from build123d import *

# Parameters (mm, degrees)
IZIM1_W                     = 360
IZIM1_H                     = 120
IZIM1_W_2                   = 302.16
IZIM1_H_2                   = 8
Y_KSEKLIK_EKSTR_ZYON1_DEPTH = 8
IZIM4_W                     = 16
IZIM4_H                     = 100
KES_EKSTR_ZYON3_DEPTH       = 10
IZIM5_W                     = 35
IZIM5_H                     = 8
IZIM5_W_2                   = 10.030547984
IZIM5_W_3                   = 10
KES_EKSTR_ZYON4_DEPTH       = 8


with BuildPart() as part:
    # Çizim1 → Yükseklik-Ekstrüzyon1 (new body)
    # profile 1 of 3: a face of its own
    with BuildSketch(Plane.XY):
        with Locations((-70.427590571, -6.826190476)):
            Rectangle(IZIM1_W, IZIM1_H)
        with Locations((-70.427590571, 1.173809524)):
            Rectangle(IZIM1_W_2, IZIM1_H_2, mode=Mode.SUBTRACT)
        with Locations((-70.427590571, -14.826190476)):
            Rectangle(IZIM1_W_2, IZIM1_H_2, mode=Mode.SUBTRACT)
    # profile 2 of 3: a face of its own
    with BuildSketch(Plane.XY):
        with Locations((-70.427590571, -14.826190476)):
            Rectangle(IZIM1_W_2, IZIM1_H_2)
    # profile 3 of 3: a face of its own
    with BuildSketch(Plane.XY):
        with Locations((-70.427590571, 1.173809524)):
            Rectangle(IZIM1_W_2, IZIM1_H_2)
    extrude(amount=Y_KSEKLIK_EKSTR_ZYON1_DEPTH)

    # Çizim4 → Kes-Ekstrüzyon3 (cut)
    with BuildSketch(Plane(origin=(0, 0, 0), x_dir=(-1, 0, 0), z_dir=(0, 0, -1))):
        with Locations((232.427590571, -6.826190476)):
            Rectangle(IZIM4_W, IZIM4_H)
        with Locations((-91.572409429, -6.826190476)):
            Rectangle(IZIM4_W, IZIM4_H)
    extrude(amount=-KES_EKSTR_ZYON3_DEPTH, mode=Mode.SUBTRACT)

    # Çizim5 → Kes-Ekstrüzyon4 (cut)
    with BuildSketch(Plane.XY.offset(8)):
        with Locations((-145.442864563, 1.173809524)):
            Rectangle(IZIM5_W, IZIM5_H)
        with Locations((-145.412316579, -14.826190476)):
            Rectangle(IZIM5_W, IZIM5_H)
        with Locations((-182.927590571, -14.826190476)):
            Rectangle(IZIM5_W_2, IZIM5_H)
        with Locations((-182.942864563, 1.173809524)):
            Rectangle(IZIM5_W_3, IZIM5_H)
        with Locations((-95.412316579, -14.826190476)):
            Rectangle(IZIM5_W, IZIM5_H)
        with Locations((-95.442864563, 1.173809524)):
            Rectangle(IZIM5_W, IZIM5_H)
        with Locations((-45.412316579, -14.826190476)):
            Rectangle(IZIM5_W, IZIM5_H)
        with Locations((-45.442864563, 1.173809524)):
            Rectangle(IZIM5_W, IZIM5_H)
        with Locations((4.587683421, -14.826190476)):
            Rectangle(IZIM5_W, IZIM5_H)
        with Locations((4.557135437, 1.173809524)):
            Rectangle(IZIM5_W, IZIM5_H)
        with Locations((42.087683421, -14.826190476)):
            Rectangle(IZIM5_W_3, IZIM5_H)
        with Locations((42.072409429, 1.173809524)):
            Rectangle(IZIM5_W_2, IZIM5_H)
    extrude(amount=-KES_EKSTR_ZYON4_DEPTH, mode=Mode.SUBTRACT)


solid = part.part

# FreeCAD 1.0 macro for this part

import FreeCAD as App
import Part
import Sketcher

V = App.Vector
Q = App.Units.Quantity


def add_polygon(sketch, points):
    """Adds a closed chain of lines whose ends are joined by coincident constraints."""
    first, n = sketch.GeometryCount, len(points)
    for a, b in zip(points, points[1:] + points[:1]):
        sketch.addGeometry(Part.LineSegment(App.Vector(*a, 0), App.Vector(*b, 0)), False)
    for i in range(n):
        sketch.addConstraint(Sketcher.Constraint("Coincident", first + i, 2, first + (i + 1) % n, 1))

doc = App.newDocument("Part")
body = doc.addObject("PartDesign::Body", "Body")

# Sketch on XY plane
sketch1 = body.newObject("Sketcher::SketchObject", "Sketch")
sketch1.AttachmentSupport = (doc.getObject("XY_Plane"), [""])
sketch1.MapMode = "FlatFace"
add_polygon(sketch1, [(-250, 53), (-250, -67), (110, -67), (110, 53)])  # lines 0-3
sketch1.addConstraint([
    Sketcher.Constraint("Vertical", 0),
    Sketcher.Constraint("Horizontal", 1),
    Sketcher.Constraint("Vertical", 2),
    Sketcher.Constraint("Horizontal", 3),
    Sketcher.Constraint("DistanceX", 1, 1, 1, 2, Q("360 mm")),
    Sketcher.Constraint("DistanceY", 0, 2, 0, 1, Q("120 mm")),
    Sketcher.Constraint("DistanceX", 0, 2, -1, 1, Q("250.427591 mm")),
    Sketcher.Constraint("DistanceY", 0, 2, -1, 1, Q("66.82619 mm")),
])
pad1 = body.newObject("PartDesign::Pad", "Pad")
pad1.Profile = sketch1
pad1.Length = 8

# Sketch on XY plane
sketch2 = body.newObject("Sketcher::SketchObject", "Sketch001")
sketch2.AttachmentSupport = (doc.getObject("XY_Plane"), [""])
sketch2.MapMode = "FlatFace"
add_polygon(sketch2, [(-224, 43), (-224, -57), (-240, -57), (-240, 43)])  # lines 0-3
add_polygon(sketch2, [(100, 43), (100, -57), (84, -57), (84, 43)])  # lines 4-7
sketch2.addConstraint([
    Sketcher.Constraint("Vertical", 0),
    Sketcher.Constraint("Horizontal", 1),
    Sketcher.Constraint("Vertical", 2),
    Sketcher.Constraint("Horizontal", 3),
    Sketcher.Constraint("Vertical", 4),
    Sketcher.Constraint("Horizontal", 5),
    Sketcher.Constraint("Vertical", 6),
    Sketcher.Constraint("Horizontal", 7),
    Sketcher.Constraint("Horizontal", 1, 2, 4, 2),
    Sketcher.Constraint("Horizontal", 3, 2, 6, 2),
    Sketcher.Constraint("Equal", 3, 5),
    Sketcher.Constraint("DistanceX", 1, 2, 1, 1, Q("16 mm")),
    Sketcher.Constraint("DistanceY", 0, 2, 0, 1, Q("100 mm")),
    Sketcher.Constraint("DistanceX", 0, 2, 4, 2, Q("324 mm")),
    Sketcher.Constraint("DistanceX", 0, 2, -1, 1, Q("224.427591 mm")),
    Sketcher.Constraint("DistanceY", 0, 2, -1, 1, Q("56.82619 mm")),
])
pocket1 = body.newObject("PartDesign::Pocket", "Pocket")
pocket1.Profile = sketch2
pocket1.Length = 10
pocket1.Reversed = True

# Sketch on XY plane
sketch3 = body.newObject("Sketcher::SketchObject", "Sketch002")
sketch3.AttachmentSupport = (doc.getObject("XY_Plane"), [""])
sketch3.MapMode = "FlatFace"
sketch3.AttachmentOffset = App.Placement(V(0, 0, 8), App.Rotation())
add_polygon(sketch3, [(-163, 5), (-163, -3), (-128, -3), (-128, 5)])  # lines 0-3
add_polygon(sketch3, [(-163, -11), (-163, -19), (-128, -19), (-128, -11)])  # lines 4-7
add_polygon(sketch3, [(-188, -11), (-188, -19), (-178, -19), (-178, -11)])  # lines 8-11
add_polygon(sketch3, [(-188, 5), (-188, -3), (-178, -3), (-178, 5)])  # lines 12-15
add_polygon(sketch3, [(-113, -11), (-113, -19), (-78, -19), (-78, -11)])  # lines 16-19
add_polygon(sketch3, [(-113, 5), (-113, -3), (-78, -3), (-78, 5)])  # lines 20-23
add_polygon(sketch3, [(-63, -11), (-63, -19), (-28, -19), (-28, -11)])  # lines 24-27
add_polygon(sketch3, [(-63, 5), (-63, -3), (-28, -3), (-28, 5)])  # lines 28-31
add_polygon(sketch3, [(-13, -11), (-13, -19), (22, -19), (22, -11)])  # lines 32-35
add_polygon(sketch3, [(-13, 5), (-13, -3), (22, -3), (22, 5)])  # lines 36-39
add_polygon(sketch3, [(37, -11), (37, -19), (47, -19), (47, -11)])  # lines 40-43
add_polygon(sketch3, [(37, 5), (37, -3), (47, -3), (47, 5)])  # lines 44-47
sketch3.addConstraint([
    Sketcher.Constraint("Vertical", 0),
    Sketcher.Constraint("Horizontal", 1),
    Sketcher.Constraint("Vertical", 2),
    Sketcher.Constraint("Horizontal", 3),
    Sketcher.Constraint("Vertical", 4),
    Sketcher.Constraint("Horizontal", 5),
    Sketcher.Constraint("Vertical", 6),
    Sketcher.Constraint("Horizontal", 7),
    Sketcher.Constraint("Vertical", 8),
    Sketcher.Constraint("Horizontal", 9),
    Sketcher.Constraint("Vertical", 10),
    Sketcher.Constraint("Horizontal", 11),
    Sketcher.Constraint("Vertical", 12),
    Sketcher.Constraint("Horizontal", 13),
    Sketcher.Constraint("Vertical", 14),
    Sketcher.Constraint("Horizontal", 15),
    Sketcher.Constraint("Vertical", 16),
    Sketcher.Constraint("Horizontal", 17),
    Sketcher.Constraint("Vertical", 18),
    Sketcher.Constraint("Horizontal", 19),
    Sketcher.Constraint("Vertical", 20),
    Sketcher.Constraint("Horizontal", 21),
    Sketcher.Constraint("Vertical", 22),
    Sketcher.Constraint("Horizontal", 23),
    Sketcher.Constraint("Vertical", 24),
    Sketcher.Constraint("Horizontal", 25),
    Sketcher.Constraint("Vertical", 26),
    Sketcher.Constraint("Horizontal", 27),
    Sketcher.Constraint("Vertical", 28),
    Sketcher.Constraint("Horizontal", 29),
    Sketcher.Constraint("Vertical", 30),
    Sketcher.Constraint("Horizontal", 31),
    Sketcher.Constraint("Vertical", 32),
    Sketcher.Constraint("Horizontal", 33),
    Sketcher.Constraint("Vertical", 34),
    Sketcher.Constraint("Horizontal", 35),
    Sketcher.Constraint("Vertical", 36),
    Sketcher.Constraint("Horizontal", 37),
    Sketcher.Constraint("Vertical", 38),
    Sketcher.Constraint("Horizontal", 39),
    Sketcher.Constraint("Vertical", 40),
    Sketcher.Constraint("Horizontal", 41),
    Sketcher.Constraint("Vertical", 42),
    Sketcher.Constraint("Horizontal", 43),
    Sketcher.Constraint("Vertical", 44),
    Sketcher.Constraint("Horizontal", 45),
    Sketcher.Constraint("Vertical", 46),
    Sketcher.Constraint("Horizontal", 47),
    Sketcher.Constraint("Horizontal", 5, 2, 8, 2),
    Sketcher.Constraint("Horizontal", 7, 2, 10, 2),
    Sketcher.Constraint("Horizontal", 1, 2, 12, 2),
    Sketcher.Constraint("Horizontal", 3, 2, 14, 2),
    Sketcher.Constraint("Horizontal", 9, 2, 16, 2),
    Sketcher.Constraint("Horizontal", 11, 2, 18, 2),
    Sketcher.Constraint("Horizontal", 13, 2, 20, 2),
    Sketcher.Constraint("Horizontal", 15, 2, 22, 2),
    Sketcher.Constraint("Horizontal", 17, 2, 24, 2),
    Sketcher.Constraint("Horizontal", 19, 2, 26, 2),
    Sketcher.Constraint("Horizontal", 21, 2, 28, 2),
    Sketcher.Constraint("Horizontal", 23, 2, 30, 2),
    Sketcher.Constraint("Horizontal", 25, 2, 32, 2),
    Sketcher.Constraint("Horizontal", 27, 2, 34, 2),
    Sketcher.Constraint("Horizontal", 29, 2, 36, 2),
    Sketcher.Constraint("Horizontal", 31, 2, 38, 2),
    Sketcher.Constraint("Horizontal", 33, 2, 40, 2),
    Sketcher.Constraint("Horizontal", 35, 2, 42, 2),
    Sketcher.Constraint("Horizontal", 37, 2, 44, 2),
    Sketcher.Constraint("Horizontal", 39, 2, 46, 2),
    Sketcher.Constraint("Vertical", 11, 2, 12, 2),
    Sketcher.Constraint("Vertical", 42, 2, 45, 2),
    Sketcher.Constraint("Equal", 3, 5),
    Sketcher.Constraint("Equal", 7, 17),
    Sketcher.Constraint("Equal", 19, 21),
    Sketcher.Constraint("Equal", 23, 25),
    Sketcher.Constraint("Equal", 27, 29),
    Sketcher.Constraint("Equal", 31, 33),
    Sketcher.Constraint("Equal", 35, 37),
    Sketcher.Constraint("Equal", 15, 41),
    Sketcher.Constraint("Equal", 11, 45),
    Sketcher.Constraint("Equal", 2, 4),
    Sketcher.Constraint("DistanceX", 1, 1, 1, 2, Q("35 mm")),
    Sketcher.Constraint("DistanceX", 13, 1, 13, 2, Q("10 mm")),
    Sketcher.Constraint("DistanceY", 0, 2, 0, 1, Q("8 mm")),
    Sketcher.Constraint("DistanceY", 4, 2, 0, 2, Q("16 mm")),
    Sketcher.Constraint("DistanceX", 8, 2, 0, 2, Q("25 mm")),
    Sketcher.Constraint("DistanceX", 9, 2, 4, 2, Q("15 mm")),
    Sketcher.Constraint("DistanceX", 5, 2, 16, 2, Q("15 mm")),
    Sketcher.Constraint("DistanceX", 1, 2, 20, 2, Q("15 mm")),
    Sketcher.Constraint("DistanceX", 17, 2, 24, 2, Q("15 mm")),
    Sketcher.Constraint("DistanceX", 21, 2, 28, 2, Q("15 mm")),
    Sketcher.Constraint("DistanceX", 25, 2, 32, 2, Q("15 mm")),
    Sketcher.Constraint("DistanceX", 29, 2, 36, 2, Q("15 mm")),
    Sketcher.Constraint("DistanceX", 33, 2, 40, 2, Q("15 mm")),
    Sketcher.Constraint("DistanceX", 9, 1, 9, 2, Q("10.030548 mm")),
    Sketcher.Constraint("DistanceY", 0, 2, -1, 1, Q("2.82619 mm")),
    Sketcher.Constraint("DistanceX", 0, 2, -1, 1, Q("162.942865 mm")),
])
pocket2 = body.newObject("PartDesign::Pocket", "Pocket001")
pocket2.Profile = sketch3
pocket2.Length = 8

doc.recompute()
